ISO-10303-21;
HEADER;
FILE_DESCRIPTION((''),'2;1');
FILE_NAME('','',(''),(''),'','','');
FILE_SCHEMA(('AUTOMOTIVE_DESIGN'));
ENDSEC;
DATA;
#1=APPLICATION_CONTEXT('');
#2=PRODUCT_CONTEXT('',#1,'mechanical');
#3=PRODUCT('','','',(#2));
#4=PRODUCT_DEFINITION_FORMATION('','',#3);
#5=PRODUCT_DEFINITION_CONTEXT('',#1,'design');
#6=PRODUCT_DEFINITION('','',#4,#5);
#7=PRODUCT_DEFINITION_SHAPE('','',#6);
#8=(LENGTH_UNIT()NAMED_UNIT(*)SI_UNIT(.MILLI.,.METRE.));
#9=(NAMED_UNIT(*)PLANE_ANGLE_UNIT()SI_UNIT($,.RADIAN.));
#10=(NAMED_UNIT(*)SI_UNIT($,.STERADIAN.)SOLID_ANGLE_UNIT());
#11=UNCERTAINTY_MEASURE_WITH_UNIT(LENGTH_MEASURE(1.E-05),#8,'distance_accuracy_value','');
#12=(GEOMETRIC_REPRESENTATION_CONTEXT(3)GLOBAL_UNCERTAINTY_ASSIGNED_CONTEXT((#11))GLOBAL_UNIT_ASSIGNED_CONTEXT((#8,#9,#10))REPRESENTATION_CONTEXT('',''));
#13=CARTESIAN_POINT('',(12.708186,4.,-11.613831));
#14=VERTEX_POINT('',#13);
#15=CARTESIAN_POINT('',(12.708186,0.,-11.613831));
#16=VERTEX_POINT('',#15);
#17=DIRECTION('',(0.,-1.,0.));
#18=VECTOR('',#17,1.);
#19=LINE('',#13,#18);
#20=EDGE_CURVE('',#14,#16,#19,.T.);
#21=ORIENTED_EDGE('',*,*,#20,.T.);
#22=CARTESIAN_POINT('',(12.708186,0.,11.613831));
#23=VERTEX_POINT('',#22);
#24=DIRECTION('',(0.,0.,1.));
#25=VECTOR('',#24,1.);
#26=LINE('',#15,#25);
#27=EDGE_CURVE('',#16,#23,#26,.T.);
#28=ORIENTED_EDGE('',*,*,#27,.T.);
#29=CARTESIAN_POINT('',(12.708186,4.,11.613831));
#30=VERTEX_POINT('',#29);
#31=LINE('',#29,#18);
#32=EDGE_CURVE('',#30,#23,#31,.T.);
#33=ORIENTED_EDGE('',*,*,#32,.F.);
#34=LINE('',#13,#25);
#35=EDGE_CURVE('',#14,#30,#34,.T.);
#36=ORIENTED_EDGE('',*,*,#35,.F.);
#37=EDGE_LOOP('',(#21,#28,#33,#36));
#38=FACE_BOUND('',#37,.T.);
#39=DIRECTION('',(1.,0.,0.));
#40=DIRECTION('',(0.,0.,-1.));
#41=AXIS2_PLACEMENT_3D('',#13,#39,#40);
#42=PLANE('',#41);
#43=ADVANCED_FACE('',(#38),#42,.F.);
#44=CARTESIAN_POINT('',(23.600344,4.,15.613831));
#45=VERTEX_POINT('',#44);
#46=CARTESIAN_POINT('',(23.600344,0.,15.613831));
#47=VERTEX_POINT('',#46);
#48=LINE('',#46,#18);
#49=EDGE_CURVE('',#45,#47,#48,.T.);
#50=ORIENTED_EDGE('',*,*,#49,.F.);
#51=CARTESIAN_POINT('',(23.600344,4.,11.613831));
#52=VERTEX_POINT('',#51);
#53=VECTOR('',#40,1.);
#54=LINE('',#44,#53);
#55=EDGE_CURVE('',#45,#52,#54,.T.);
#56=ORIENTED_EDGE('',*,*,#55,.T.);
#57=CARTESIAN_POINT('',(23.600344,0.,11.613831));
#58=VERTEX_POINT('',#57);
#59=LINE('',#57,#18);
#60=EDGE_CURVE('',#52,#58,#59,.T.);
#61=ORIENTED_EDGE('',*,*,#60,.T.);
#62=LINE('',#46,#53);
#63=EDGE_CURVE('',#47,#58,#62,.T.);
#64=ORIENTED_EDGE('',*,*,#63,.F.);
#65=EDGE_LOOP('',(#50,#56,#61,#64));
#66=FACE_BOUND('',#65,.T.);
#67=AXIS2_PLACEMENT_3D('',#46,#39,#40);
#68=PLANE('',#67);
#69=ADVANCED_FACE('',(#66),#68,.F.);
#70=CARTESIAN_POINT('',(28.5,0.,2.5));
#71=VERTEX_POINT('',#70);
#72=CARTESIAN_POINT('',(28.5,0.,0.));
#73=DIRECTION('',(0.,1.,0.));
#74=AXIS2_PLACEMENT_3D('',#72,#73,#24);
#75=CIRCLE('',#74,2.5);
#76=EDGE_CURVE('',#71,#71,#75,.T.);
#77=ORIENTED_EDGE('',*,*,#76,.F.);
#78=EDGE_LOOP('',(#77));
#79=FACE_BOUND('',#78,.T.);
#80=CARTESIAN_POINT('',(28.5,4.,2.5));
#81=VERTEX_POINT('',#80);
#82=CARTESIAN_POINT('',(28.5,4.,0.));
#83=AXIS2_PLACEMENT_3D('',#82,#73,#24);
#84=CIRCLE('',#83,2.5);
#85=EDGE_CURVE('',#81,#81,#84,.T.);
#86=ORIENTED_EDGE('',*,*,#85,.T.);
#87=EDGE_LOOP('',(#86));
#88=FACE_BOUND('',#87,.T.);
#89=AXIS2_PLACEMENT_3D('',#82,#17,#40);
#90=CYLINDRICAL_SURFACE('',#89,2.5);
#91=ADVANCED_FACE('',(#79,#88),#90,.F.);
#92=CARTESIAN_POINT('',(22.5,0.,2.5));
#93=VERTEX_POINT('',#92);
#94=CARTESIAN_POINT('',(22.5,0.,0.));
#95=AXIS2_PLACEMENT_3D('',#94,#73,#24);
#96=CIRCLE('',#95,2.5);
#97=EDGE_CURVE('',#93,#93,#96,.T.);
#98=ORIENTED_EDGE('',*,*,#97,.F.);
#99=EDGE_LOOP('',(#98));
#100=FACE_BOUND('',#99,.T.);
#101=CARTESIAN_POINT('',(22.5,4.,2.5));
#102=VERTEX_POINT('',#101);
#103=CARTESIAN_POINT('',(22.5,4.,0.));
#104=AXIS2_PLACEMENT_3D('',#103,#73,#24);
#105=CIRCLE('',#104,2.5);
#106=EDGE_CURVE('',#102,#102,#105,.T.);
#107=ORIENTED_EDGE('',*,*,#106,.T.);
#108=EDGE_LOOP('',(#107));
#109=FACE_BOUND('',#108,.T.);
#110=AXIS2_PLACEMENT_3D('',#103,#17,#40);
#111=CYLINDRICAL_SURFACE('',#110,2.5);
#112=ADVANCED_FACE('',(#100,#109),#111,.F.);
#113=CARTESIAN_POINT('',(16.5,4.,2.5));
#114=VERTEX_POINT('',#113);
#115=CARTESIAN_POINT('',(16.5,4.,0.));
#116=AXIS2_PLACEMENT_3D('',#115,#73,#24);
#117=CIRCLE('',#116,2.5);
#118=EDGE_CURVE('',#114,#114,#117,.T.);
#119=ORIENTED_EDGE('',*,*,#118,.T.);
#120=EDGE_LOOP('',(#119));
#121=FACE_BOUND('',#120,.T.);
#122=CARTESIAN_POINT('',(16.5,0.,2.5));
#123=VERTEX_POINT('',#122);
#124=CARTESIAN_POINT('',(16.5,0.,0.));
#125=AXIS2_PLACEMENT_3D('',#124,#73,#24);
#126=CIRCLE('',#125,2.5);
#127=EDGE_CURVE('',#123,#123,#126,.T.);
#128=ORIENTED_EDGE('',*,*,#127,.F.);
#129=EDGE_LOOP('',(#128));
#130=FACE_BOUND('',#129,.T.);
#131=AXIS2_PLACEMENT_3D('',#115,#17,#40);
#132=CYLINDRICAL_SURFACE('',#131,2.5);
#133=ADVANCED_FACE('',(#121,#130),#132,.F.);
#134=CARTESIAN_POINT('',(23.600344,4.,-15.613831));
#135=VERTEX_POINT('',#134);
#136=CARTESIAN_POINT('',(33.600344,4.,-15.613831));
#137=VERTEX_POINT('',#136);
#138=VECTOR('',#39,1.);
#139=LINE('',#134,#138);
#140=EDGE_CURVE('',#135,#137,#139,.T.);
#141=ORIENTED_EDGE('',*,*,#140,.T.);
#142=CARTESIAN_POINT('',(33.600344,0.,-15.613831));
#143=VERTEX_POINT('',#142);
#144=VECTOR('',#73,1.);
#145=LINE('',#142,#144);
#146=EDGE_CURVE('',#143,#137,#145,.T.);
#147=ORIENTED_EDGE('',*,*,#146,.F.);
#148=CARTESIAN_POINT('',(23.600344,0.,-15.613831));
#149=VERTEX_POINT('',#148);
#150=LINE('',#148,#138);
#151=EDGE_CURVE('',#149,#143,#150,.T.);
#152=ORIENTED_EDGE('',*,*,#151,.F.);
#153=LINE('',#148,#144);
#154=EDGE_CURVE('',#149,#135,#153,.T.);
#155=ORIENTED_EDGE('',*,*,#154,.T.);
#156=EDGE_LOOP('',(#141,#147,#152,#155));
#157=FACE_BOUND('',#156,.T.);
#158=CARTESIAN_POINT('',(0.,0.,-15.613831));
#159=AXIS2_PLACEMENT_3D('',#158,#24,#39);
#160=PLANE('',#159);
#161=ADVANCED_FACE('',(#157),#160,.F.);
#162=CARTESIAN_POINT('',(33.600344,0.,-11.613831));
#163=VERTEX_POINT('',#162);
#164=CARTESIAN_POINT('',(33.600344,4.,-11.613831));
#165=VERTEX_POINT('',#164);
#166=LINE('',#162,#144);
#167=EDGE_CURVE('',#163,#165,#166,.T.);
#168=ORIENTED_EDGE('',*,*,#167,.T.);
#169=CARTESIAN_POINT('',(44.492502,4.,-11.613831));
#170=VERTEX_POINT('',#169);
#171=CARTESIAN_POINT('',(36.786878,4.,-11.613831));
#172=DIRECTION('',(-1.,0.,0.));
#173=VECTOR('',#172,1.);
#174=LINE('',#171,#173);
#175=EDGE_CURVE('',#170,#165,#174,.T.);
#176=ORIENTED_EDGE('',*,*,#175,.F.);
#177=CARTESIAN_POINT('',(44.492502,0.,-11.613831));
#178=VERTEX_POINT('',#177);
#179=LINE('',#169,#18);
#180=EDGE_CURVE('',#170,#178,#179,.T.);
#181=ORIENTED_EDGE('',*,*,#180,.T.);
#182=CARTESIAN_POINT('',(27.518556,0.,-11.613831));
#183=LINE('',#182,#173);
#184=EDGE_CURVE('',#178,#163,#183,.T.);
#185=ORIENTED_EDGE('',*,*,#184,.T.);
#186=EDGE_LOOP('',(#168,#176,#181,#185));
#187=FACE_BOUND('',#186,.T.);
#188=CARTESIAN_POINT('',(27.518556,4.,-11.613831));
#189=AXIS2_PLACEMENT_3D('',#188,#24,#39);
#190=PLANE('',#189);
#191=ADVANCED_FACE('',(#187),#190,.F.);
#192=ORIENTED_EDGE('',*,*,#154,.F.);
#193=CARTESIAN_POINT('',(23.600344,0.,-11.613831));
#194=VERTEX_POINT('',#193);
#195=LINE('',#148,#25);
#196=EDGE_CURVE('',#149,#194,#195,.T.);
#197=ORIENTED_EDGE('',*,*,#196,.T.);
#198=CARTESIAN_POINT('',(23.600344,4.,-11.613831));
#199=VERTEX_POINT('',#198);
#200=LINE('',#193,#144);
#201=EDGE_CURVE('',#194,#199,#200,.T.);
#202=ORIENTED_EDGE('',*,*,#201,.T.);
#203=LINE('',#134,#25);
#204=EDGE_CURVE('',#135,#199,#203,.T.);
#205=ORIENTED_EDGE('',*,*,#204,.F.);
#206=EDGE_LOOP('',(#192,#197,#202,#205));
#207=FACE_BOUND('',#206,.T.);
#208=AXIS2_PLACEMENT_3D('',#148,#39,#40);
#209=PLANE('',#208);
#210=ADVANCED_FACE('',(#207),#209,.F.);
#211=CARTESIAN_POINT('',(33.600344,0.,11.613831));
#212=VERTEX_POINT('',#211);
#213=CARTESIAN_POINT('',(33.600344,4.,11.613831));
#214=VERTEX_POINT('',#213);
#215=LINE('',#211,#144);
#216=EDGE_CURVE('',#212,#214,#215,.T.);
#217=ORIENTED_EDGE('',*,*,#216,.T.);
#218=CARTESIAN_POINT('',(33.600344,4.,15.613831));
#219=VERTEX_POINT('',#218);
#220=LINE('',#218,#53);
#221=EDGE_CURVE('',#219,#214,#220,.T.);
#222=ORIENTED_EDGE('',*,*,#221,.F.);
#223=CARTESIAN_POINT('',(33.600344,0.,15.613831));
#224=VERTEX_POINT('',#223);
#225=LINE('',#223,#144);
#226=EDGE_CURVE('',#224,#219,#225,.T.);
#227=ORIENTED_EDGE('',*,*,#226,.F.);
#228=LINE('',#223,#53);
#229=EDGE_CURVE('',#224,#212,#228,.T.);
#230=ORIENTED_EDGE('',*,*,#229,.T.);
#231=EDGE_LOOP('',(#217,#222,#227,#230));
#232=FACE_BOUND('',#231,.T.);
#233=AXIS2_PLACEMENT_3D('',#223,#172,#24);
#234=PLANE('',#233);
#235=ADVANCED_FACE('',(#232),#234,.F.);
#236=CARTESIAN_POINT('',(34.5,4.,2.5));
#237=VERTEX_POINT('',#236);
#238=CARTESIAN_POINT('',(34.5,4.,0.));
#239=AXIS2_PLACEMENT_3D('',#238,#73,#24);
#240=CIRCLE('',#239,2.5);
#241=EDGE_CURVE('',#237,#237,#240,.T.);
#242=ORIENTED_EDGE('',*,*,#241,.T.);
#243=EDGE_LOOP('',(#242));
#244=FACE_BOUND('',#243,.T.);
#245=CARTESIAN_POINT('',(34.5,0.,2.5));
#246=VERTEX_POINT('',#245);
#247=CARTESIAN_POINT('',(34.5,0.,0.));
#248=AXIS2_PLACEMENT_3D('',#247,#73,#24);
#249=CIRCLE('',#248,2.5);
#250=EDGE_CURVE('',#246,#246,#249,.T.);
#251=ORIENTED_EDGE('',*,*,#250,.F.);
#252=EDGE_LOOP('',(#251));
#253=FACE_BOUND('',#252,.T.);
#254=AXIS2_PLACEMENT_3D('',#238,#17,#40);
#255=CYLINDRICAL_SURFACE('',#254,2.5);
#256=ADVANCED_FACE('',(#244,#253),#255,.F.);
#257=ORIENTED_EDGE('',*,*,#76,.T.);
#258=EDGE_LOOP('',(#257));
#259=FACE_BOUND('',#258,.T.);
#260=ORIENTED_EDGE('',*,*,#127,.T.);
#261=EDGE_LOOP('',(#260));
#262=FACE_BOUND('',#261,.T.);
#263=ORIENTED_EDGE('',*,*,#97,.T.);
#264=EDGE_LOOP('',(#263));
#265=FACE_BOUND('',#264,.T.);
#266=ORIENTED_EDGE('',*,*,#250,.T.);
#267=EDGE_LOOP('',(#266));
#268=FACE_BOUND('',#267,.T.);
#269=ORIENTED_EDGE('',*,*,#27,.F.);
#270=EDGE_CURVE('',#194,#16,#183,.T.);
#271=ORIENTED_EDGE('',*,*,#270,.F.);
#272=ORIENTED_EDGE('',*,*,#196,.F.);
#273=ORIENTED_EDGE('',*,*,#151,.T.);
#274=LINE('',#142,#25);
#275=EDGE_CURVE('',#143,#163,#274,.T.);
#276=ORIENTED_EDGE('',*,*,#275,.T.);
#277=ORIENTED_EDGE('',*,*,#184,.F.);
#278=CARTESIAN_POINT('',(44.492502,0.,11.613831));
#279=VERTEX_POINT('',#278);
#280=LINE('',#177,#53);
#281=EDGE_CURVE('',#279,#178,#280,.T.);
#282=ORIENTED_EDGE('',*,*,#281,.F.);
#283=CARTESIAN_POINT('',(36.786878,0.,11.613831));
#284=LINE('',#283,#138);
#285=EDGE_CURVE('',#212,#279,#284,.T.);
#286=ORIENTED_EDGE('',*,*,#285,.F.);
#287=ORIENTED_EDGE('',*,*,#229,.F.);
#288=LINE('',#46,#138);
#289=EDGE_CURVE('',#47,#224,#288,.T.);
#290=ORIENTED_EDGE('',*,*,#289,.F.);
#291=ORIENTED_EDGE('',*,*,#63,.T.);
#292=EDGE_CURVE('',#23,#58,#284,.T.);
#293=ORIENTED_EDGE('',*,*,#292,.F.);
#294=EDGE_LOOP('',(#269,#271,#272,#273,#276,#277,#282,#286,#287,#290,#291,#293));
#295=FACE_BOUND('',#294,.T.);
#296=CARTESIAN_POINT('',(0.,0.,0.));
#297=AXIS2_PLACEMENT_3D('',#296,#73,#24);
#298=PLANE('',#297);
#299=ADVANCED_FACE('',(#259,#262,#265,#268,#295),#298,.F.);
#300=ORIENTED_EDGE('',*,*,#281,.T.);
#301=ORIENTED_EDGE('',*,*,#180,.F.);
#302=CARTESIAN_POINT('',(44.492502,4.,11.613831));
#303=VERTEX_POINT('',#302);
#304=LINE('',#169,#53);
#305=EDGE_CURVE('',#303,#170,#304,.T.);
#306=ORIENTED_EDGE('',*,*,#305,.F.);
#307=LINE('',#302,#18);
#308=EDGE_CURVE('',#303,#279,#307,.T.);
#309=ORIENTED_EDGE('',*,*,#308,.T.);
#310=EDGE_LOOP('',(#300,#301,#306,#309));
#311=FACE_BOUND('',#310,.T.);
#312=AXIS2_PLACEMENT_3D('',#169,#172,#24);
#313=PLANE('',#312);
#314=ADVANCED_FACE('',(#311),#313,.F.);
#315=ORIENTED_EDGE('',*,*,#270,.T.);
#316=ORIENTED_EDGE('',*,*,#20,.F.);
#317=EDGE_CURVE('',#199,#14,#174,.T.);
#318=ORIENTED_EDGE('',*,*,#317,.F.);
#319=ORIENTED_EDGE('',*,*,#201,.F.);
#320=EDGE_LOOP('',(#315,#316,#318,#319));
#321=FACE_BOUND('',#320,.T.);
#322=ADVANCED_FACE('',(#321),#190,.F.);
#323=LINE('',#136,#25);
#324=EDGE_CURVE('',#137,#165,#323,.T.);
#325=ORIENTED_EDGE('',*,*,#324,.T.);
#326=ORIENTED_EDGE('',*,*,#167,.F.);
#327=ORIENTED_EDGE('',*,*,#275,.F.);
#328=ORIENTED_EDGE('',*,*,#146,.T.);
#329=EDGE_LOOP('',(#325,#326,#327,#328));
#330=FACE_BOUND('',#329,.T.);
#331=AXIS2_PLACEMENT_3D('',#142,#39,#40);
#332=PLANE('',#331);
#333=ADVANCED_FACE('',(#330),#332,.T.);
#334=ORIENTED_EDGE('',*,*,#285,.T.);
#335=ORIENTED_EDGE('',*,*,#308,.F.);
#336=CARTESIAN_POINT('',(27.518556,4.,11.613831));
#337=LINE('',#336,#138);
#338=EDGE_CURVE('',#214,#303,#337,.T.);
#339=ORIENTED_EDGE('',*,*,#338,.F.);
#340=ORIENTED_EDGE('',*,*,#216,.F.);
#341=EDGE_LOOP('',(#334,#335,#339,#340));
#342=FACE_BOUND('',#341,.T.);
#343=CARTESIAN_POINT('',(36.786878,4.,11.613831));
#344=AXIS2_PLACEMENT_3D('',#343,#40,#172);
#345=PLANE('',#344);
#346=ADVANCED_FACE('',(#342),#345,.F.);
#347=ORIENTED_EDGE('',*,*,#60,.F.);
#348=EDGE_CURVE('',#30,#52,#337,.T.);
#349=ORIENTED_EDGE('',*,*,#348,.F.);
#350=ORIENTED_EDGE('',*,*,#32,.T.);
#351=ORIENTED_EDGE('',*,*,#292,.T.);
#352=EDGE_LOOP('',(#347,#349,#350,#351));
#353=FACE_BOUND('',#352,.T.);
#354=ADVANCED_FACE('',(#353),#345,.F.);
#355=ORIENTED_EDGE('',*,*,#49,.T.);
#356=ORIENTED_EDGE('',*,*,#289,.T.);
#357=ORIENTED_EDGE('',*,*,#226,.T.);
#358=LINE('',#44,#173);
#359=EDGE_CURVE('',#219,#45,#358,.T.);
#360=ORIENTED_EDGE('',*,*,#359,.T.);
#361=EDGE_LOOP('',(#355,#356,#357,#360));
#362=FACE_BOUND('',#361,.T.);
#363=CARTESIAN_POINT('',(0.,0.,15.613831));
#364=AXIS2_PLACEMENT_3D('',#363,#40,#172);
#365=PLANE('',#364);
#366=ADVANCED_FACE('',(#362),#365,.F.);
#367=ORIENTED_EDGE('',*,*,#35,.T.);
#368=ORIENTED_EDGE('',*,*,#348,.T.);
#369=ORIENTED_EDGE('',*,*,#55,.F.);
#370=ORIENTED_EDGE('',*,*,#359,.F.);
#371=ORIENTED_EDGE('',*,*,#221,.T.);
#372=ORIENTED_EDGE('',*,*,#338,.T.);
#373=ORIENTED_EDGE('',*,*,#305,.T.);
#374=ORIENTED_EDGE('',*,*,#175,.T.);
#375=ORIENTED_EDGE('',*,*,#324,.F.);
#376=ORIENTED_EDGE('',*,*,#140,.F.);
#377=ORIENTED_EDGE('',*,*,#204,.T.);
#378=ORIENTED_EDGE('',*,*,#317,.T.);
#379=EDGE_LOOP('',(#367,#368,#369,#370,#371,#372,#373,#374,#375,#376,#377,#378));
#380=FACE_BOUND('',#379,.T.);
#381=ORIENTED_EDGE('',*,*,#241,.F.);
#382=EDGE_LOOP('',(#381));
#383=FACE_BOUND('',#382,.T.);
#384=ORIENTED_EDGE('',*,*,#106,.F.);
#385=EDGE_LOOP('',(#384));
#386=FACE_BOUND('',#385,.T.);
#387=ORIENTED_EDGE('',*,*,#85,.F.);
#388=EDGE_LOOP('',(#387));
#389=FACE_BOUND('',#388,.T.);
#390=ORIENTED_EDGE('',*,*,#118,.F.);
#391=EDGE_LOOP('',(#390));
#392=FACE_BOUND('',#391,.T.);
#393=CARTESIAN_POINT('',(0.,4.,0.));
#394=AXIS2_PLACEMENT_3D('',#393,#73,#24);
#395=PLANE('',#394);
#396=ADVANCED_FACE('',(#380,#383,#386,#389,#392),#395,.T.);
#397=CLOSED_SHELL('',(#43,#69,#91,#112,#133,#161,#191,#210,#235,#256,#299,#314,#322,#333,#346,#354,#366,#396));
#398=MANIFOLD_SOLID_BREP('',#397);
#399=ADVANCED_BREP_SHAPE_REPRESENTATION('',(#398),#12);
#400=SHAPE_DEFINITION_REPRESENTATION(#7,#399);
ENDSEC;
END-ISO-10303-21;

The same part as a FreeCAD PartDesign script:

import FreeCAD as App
import Part
import Sketcher

doc = App.newDocument("Part")
body = doc.addObject("PartDesign::Body", "Body")

# Sketch on XZ plane
sketch1 = doc.addObject("Sketcher::SketchObject", "Sketch")
body.addObject(sketch1)
sketch1.AttachmentSupport = (doc.XZ_Plane, [""])
sketch1.MapMode = "FlatFace"
sketch1.addGeometry([
    Part.LineSegment(App.Vector(44.5, -11.6, 0), App.Vector(12.7, -11.6, 0)),  # 0
    Part.LineSegment(App.Vector(12.7, -11.6, 0), App.Vector(12.7, 11.6, 0)),  # 1
    Part.LineSegment(App.Vector(12.7, 11.6, 0), App.Vector(44.5, 11.6, 0)),  # 2
    Part.LineSegment(App.Vector(44.5, 11.6, 0), App.Vector(44.5, -11.6, 0)),  # 3
    Part.Circle(App.Vector(34.5, 0, 0), App.Vector(0, 0, 1), 2.5),  # 4
    Part.Circle(App.Vector(28.5, 0, 0), App.Vector(0, 0, 1), 2.5),  # 5
    Part.Circle(App.Vector(22.5, 0, 0), App.Vector(0, 0, 1), 2.5),  # 6
    Part.Circle(App.Vector(16.5, 0, 0), App.Vector(0, 0, 1), 2.5),  # 7
], False)
sketch1.addConstraint([
    Sketcher.Constraint("Coincident", 0, 2, 1, 1),
    Sketcher.Constraint("Coincident", 1, 2, 2, 1),
    Sketcher.Constraint("Coincident", 2, 2, 3, 1),
    Sketcher.Constraint("Coincident", 3, 2, 0, 1),
    Sketcher.Constraint("Horizontal", 0),
    Sketcher.Constraint("Vertical", 1),
    Sketcher.Constraint("Horizontal", 2),
    Sketcher.Constraint("Vertical", 3),
    Sketcher.Constraint("Equal", 4, 5),
    Sketcher.Constraint("Equal", 5, 6),
    Sketcher.Constraint("Equal", 6, 7),
    Sketcher.Constraint("PointOnObject", 4, 3, -1),
    Sketcher.Constraint("PointOnObject", 5, 3, -1),
    Sketcher.Constraint("PointOnObject", 6, 3, -1),
    Sketcher.Constraint("PointOnObject", 7, 3, -1),
    Sketcher.Constraint("Diameter", 4, 5.0),
    Sketcher.Constraint("DistanceX", 5, 3, 4, 3, 6.0),
    Sketcher.Constraint("DistanceX", 6, 3, 5, 3, 6.0),
    Sketcher.Constraint("DistanceX", 7, 3, 6, 3, 6.0),
    Sketcher.Constraint("DistanceX", -1, 1, 4, 3, 34.5),
    Sketcher.Constraint("DistanceX", 0, 2, 0, 1, 31.784316),
    Sketcher.Constraint("DistanceY", 1, 1, 1, 2, 23.227662),
    Sketcher.Constraint("DistanceY", 0, 2, -1, 1, 11.613831),
    Sketcher.Constraint("DistanceX", -1, 1, 0, 2, 12.708186),
])
pad1 = doc.addObject("PartDesign::Pad", "Pad")
body.addObject(pad1)
pad1.Profile = sketch1
pad1.Length = 4
pad1.Reversed = True

# Sketch on XY plane
sketch2 = doc.addObject("Sketcher::SketchObject", "Sketch001")
body.addObject(sketch2)
sketch2.AttachmentSupport = (doc.XY_Plane, [""])
sketch2.MapMode = "FlatFace"
sketch2.AttachmentOffset = App.Placement(App.Vector(0, 0, 11.613831), App.Rotation())
sketch2.addGeometry([
    Part.LineSegment(App.Vector(23.6, 4, 0), App.Vector(23.6, 0, 0)),
    Part.LineSegment(App.Vector(23.6, 0, 0), App.Vector(33.6, 0, 0)),
    Part.LineSegment(App.Vector(33.6, 0, 0), App.Vector(33.6, 4, 0)),
    Part.LineSegment(App.Vector(33.6, 4, 0), App.Vector(23.6, 4, 0)),
], False)
sketch2.addConstraint([
    Sketcher.Constraint("Coincident", 0, 2, 1, 1),
    Sketcher.Constraint("Coincident", 1, 2, 2, 1),
    Sketcher.Constraint("Coincident", 2, 2, 3, 1),
    Sketcher.Constraint("Coincident", 3, 2, 0, 1),
    Sketcher.Constraint("Vertical", 0),
    Sketcher.Constraint("Horizontal", 1),
    Sketcher.Constraint("Vertical", 2),
    Sketcher.Constraint("Horizontal", 3),
    Sketcher.Constraint("PointOnObject", 0, 2, -1),
    Sketcher.Constraint("DistanceX", 1, 1, 1, 2, 10.0),
    Sketcher.Constraint("DistanceY", 0, 2, 0, 1, 4.0),
    Sketcher.Constraint("DistanceX", -1, 1, 0, 2, 23.600344),
])
pad2 = doc.addObject("PartDesign::Pad", "Pad001")
body.addObject(pad2)
pad2.Profile = sketch2
pad2.Length = 4

# Sketch on XY plane
sketch3 = doc.addObject("Sketcher::SketchObject", "Sketch002")
body.addObject(sketch3)
sketch3.AttachmentSupport = (doc.XY_Plane, [""])
sketch3.MapMode = "FlatFace"
sketch3.AttachmentOffset = App.Placement(App.Vector(0, 0, -11.613831), App.Rotation())
sketch3.addGeometry([
    Part.LineSegment(App.Vector(33.6, 4, 0), App.Vector(33.6, 0, 0)),
    Part.LineSegment(App.Vector(33.6, 0, 0), App.Vector(23.6, 0, 0)),
    Part.LineSegment(App.Vector(23.6, 0, 0), App.Vector(23.6, 4, 0)),
    Part.LineSegment(App.Vector(23.6, 4, 0), App.Vector(33.6, 4, 0)),
], False)
sketch3.addConstraint([
    Sketcher.Constraint("Coincident", 0, 2, 1, 1),
    Sketcher.Constraint("Coincident", 1, 2, 2, 1),
    Sketcher.Constraint("Coincident", 2, 2, 3, 1),
    Sketcher.Constraint("Coincident", 3, 2, 0, 1),
    Sketcher.Constraint("Vertical", 0),
    Sketcher.Constraint("Horizontal", 1),
    Sketcher.Constraint("Vertical", 2),
    Sketcher.Constraint("Horizontal", 3),
    Sketcher.Constraint("PointOnObject", 0, 2, -1),
    Sketcher.Constraint("DistanceX", 1, 2, 1, 1, 10.0),
    Sketcher.Constraint("DistanceY", 0, 2, 0, 1, 4.0),
    Sketcher.Constraint("DistanceX", -1, 1, 0, 2, 33.600344),
])
pad3 = doc.addObject("PartDesign::Pad", "Pad002")
body.addObject(pad3)
pad3.Profile = sketch3
pad3.Length = 4
pad3.Reversed = True

doc.recompute()
